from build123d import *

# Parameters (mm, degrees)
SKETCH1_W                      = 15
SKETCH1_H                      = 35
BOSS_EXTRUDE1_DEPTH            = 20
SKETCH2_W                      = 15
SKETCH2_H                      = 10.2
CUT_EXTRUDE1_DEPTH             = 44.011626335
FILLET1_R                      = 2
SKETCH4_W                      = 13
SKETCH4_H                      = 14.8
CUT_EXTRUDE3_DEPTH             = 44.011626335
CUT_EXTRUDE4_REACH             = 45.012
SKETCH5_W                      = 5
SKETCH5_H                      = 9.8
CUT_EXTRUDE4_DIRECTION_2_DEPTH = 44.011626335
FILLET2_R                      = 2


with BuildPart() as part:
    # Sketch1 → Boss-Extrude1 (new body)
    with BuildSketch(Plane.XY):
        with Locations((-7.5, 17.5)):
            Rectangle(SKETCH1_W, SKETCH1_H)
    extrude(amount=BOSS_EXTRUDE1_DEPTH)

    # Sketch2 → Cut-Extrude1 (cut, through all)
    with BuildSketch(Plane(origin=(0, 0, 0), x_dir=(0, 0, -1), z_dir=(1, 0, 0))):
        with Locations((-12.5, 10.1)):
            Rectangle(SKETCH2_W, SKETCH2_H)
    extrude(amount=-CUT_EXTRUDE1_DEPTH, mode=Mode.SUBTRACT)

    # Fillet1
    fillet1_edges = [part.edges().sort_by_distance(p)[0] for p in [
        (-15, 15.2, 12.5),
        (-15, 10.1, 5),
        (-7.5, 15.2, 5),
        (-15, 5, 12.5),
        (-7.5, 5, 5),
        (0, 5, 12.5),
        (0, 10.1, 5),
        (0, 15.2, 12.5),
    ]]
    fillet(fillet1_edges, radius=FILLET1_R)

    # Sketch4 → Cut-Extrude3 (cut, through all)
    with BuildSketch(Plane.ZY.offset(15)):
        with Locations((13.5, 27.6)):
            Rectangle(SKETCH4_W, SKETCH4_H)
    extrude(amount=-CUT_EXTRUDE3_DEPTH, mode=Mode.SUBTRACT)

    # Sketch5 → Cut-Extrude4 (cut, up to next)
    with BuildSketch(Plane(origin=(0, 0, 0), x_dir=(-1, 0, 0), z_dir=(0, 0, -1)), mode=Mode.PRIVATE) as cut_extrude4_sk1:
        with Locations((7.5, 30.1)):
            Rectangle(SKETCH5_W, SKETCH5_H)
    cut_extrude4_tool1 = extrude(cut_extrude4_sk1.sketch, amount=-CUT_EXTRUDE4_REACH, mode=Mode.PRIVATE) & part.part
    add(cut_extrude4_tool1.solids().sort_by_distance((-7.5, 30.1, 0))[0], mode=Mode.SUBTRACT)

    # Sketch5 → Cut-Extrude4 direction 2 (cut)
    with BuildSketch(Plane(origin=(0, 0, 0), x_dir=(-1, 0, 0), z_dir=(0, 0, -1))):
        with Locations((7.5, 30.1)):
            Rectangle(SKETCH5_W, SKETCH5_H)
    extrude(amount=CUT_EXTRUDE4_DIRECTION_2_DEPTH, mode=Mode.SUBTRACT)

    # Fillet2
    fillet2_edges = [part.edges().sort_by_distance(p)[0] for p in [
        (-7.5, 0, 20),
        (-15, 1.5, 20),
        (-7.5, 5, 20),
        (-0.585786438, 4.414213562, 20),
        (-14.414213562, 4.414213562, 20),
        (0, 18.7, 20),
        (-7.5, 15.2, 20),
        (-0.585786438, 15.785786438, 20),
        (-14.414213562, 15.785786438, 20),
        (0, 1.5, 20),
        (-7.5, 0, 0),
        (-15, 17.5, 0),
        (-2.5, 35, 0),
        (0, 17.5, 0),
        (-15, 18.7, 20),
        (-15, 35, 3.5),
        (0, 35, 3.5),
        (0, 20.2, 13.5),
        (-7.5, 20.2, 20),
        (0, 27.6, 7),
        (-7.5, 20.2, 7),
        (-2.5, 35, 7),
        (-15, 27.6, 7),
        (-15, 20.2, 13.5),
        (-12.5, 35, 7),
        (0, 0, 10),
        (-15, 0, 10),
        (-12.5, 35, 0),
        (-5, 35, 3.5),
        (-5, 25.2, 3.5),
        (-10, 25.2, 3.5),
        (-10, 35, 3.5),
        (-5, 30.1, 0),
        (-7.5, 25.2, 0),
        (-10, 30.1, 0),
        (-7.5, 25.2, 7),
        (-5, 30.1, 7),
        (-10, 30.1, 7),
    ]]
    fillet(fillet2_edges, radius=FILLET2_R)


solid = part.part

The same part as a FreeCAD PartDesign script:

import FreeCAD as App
import Part
import Sketcher
from FreeCAD import Vector


def edges_at(feature, points):
    """Names of the edges that pass closest to the given points."""
    edges = feature.Shape.Edges
    near = lambda p: min(range(len(edges)), key=lambda i: edges[i].distToShape(Part.Vertex(*p))[0])
    return sorted({f"Edge{near(p) + 1}" for p in points})

doc = App.newDocument("Part")
params = doc.addObject("Spreadsheet::Sheet", "Params")
for row, (alias, value) in enumerate([
    ("sketch1_width", "15 mm"),
    ("sketch1_height", "35 mm"),
    ("pad1_length", "20 mm"),
    ("sketch2_height", "15 mm"),
    ("sketch2_width", "10.2 mm"),
    ("fillet_radius", "2 mm"),
    ("sketch3_height", "13 mm"),
    ("sketch3_width", "14.8 mm"),
    ("sketch4_width", "5 mm"),
    ("sketch4_height", "9.8 mm"),
    ("sketch5_width", "5 mm"),
    ("sketch5_height", "9.8 mm"),
    ("pocket4_length", "44.011626 mm"),
    ("fillet2_radius", "2 mm"),
], start=1):
    params.set(f"A{row}", alias)
    params.set(f"B{row}", "=" + value)
    params.setAlias(f"B{row}", alias)

body = doc.addObject("PartDesign::Body", "Body")

# Sketch on XY plane
sketch1 = body.newObject("Sketcher::SketchObject", "Sketch")
sketch1.AttachmentSupport = (doc.getObject("XY_Plane"), [""])
sketch1.MapMode = "FlatFace"
sketch1.addGeometry(Part.LineSegment(Vector(-15, 35, 0), Vector(-15, 0, 0)), False)
sketch1.addGeometry(Part.LineSegment(Vector(-15, 0, 0), Vector(0, 0, 0)), False)
sketch1.addGeometry(Part.LineSegment(Vector(0, 0, 0), Vector(0, 35, 0)), False)
sketch1.addGeometry(Part.LineSegment(Vector(0, 35, 0), Vector(-15, 35, 0)), False)
sketch1.addConstraint(Sketcher.Constraint("Coincident", 0, 2, 1, 1))
sketch1.addConstraint(Sketcher.Constraint("Coincident", 1, 2, 2, 1))
sketch1.addConstraint(Sketcher.Constraint("Coincident", 2, 2, 3, 1))
sketch1.addConstraint(Sketcher.Constraint("Coincident", 3, 2, 0, 1))
sketch1.addConstraint(Sketcher.Constraint("Vertical", 0))
sketch1.addConstraint(Sketcher.Constraint("Horizontal", 1))
sketch1.addConstraint(Sketcher.Constraint("Vertical", 2))
sketch1.addConstraint(Sketcher.Constraint("Horizontal", 3))
sketch1.addConstraint(Sketcher.Constraint("Coincident", 1, 2, -1, 1))
sketch1.addConstraint(Sketcher.Constraint("DistanceX", 1, 1, 1, 2, 15.0))
sketch1.addConstraint(Sketcher.Constraint("DistanceY", 0, 2, 0, 1, 35.0))
sketch1.setExpression("Constraints[9]", "Params.sketch1_width")
sketch1.setExpression("Constraints[10]", "Params.sketch1_height")
pad1 = body.newObject("PartDesign::Pad", "Pad")
pad1.Profile = sketch1
pad1.setExpression("Length", "Params.pad1_length")

# Sketch on YZ plane
sketch2 = body.newObject("Sketcher::SketchObject", "Sketch001")
sketch2.AttachmentSupport = (doc.getObject("YZ_Plane"), [""])
sketch2.MapMode = "FlatFace"
sketch2.addGeometry(Part.LineSegment(Vector(15, 20, 0), Vector(5, 20, 0)), False)
sketch2.addGeometry(Part.LineSegment(Vector(5, 20, 0), Vector(5, 5, 0)), False)
sketch2.addGeometry(Part.LineSegment(Vector(5, 5, 0), Vector(15, 5, 0)), False)
sketch2.addGeometry(Part.LineSegment(Vector(15, 5, 0), Vector(15, 20, 0)), False)
sketch2.addConstraint(Sketcher.Constraint("Coincident", 0, 2, 1, 1))
sketch2.addConstraint(Sketcher.Constraint("Coincident", 1, 2, 2, 1))
sketch2.addConstraint(Sketcher.Constraint("Coincident", 2, 2, 3, 1))
sketch2.addConstraint(Sketcher.Constraint("Coincident", 3, 2, 0, 1))
sketch2.addConstraint(Sketcher.Constraint("Horizontal", 0))
sketch2.addConstraint(Sketcher.Constraint("Vertical", 1))
sketch2.addConstraint(Sketcher.Constraint("Horizontal", 2))
sketch2.addConstraint(Sketcher.Constraint("Vertical", 3))
sketch2.addConstraint(Sketcher.Constraint("DistanceY", 1, 2, 1, 1, 15.0))
sketch2.addConstraint(Sketcher.Constraint("DistanceX", 0, 2, 0, 1, 10.2))
sketch2.addConstraint(Sketcher.Constraint("DistanceX", -1, 1, 0, 2, 5.0))
sketch2.addConstraint(Sketcher.Constraint("DistanceY", -1, 1, 0, 2, 20.0))
sketch2.setExpression("Constraints[8]", "Params.sketch2_height")
sketch2.setExpression("Constraints[9]", "Params.sketch2_width")
pocket1 = body.newObject("PartDesign::Pocket", "Pocket")
pocket1.Profile = sketch2
pocket1.Type = "ThroughAll"
doc.recompute()

fillet = body.newObject("PartDesign::Fillet", "Fillet")
fillet.Base = (pocket1, edges_at(pocket1, [
    (-15, 15.2, 12.5),
    (-15, 10.1, 5),
    (-7.5, 15.2, 5),
    (-15, 5, 12.5),
    (-7.5, 5, 5),
    (0, 5, 12.5),
    (0, 10.1, 5),
    (0, 15.2, 12.5),
]))
fillet.setExpression("Radius", "Params.fillet_radius")

# Sketch on YZ plane
sketch3 = body.newObject("Sketcher::SketchObject", "Sketch002")
sketch3.AttachmentSupport = (doc.getObject("YZ_Plane"), [""])
sketch3.MapMode = "FlatFace"
sketch3.AttachmentOffset = App.Placement(Vector(0, 0, -15), App.Rotation())
sketch3.addGeometry(Part.LineSegment(Vector(35, 7, 0), Vector(20, 7, 0)), False)
sketch3.addGeometry(Part.LineSegment(Vector(20, 7, 0), Vector(20, 20, 0)), False)
sketch3.addGeometry(Part.LineSegment(Vector(20, 20, 0), Vector(35, 20, 0)), False)
sketch3.addGeometry(Part.LineSegment(Vector(35, 20, 0), Vector(35, 7, 0)), False)
sketch3.addConstraint(Sketcher.Constraint("Coincident", 0, 2, 1, 1))
sketch3.addConstraint(Sketcher.Constraint("Coincident", 1, 2, 2, 1))
sketch3.addConstraint(Sketcher.Constraint("Coincident", 2, 2, 3, 1))
sketch3.addConstraint(Sketcher.Constraint("Coincident", 3, 2, 0, 1))
sketch3.addConstraint(Sketcher.Constraint("Horizontal", 0))
sketch3.addConstraint(Sketcher.Constraint("Vertical", 1))
sketch3.addConstraint(Sketcher.Constraint("Horizontal", 2))
sketch3.addConstraint(Sketcher.Constraint("Vertical", 3))
sketch3.addConstraint(Sketcher.Constraint("DistanceY", 1, 1, 1, 2, 13.0))
sketch3.addConstraint(Sketcher.Constraint("DistanceX", 0, 2, 0, 1, 14.8))
sketch3.addConstraint(Sketcher.Constraint("DistanceY", -1, 1, 0, 2, 7.0))
sketch3.addConstraint(Sketcher.Constraint("DistanceX", -1, 1, 2, 2, 35.0))
sketch3.setExpression("Constraints[8]", "Params.sketch3_height")
sketch3.setExpression("Constraints[9]", "Params.sketch3_width")
pocket2 = body.newObject("PartDesign::Pocket", "Pocket001")
pocket2.Profile = sketch3
pocket2.Type = "ThroughAll"
pocket2.Reversed = True

# Sketch on XY plane
sketch4 = body.newObject("Sketcher::SketchObject", "Sketch003")
sketch4.AttachmentSupport = (doc.getObject("XY_Plane"), [""])
sketch4.MapMode = "FlatFace"
sketch4.addGeometry(Part.LineSegment(Vector(-5, 35, 0), Vector(-5, 25, 0)), False)
sketch4.addGeometry(Part.LineSegment(Vector(-5, 25, 0), Vector(-10, 25, 0)), False)
sketch4.addGeometry(Part.LineSegment(Vector(-10, 25, 0), Vector(-10, 35, 0)), False)
sketch4.addGeometry(Part.LineSegment(Vector(-10, 35, 0), Vector(-5, 35, 0)), False)
sketch4.addConstraint(Sketcher.Constraint("Coincident", 0, 2, 1, 1))
sketch4.addConstraint(Sketcher.Constraint("Coincident", 1, 2, 2, 1))
sketch4.addConstraint(Sketcher.Constraint("Coincident", 2, 2, 3, 1))
sketch4.addConstraint(Sketcher.Constraint("Coincident", 3, 2, 0, 1))
sketch4.addConstraint(Sketcher.Constraint("Vertical", 0))
sketch4.addConstraint(Sketcher.Constraint("Horizontal", 1))
sketch4.addConstraint(Sketcher.Constraint("Vertical", 2))
sketch4.addConstraint(Sketcher.Constraint("Horizontal", 3))
sketch4.addConstraint(Sketcher.Constraint("DistanceX", 1, 2, 1, 1, 5.0))
sketch4.addConstraint(Sketcher.Constraint("DistanceY", 0, 2, 0, 1, 9.8))
sketch4.addConstraint(Sketcher.Constraint("DistanceX", 0, 2, -1, 1, 5.0))
sketch4.addConstraint(Sketcher.Constraint("DistanceY", -1, 1, 2, 2, 35.0))
sketch4.setExpression("Constraints[8]", "Params.sketch4_width")
sketch4.setExpression("Constraints[9]", "Params.sketch4_height")
pocket3 = body.newObject("PartDesign::Pocket", "Pocket002")
pocket3.Profile = sketch4
pocket3.Type = "UpToFirst"
pocket3.Reversed = True

# Sketch on XY plane
sketch5 = body.newObject("Sketcher::SketchObject", "Sketch004")
sketch5.AttachmentSupport = (doc.getObject("XY_Plane"), [""])
sketch5.MapMode = "FlatFace"
sketch5.addGeometry(Part.LineSegment(Vector(-5, 35, 0), Vector(-5, 25, 0)), False)
sketch5.addGeometry(Part.LineSegment(Vector(-5, 25, 0), Vector(-10, 25, 0)), False)
sketch5.addGeometry(Part.LineSegment(Vector(-10, 25, 0), Vector(-10, 35, 0)), False)
sketch5.addGeometry(Part.LineSegment(Vector(-10, 35, 0), Vector(-5, 35, 0)), False)
sketch5.addConstraint(Sketcher.Constraint("Coincident", 0, 2, 1, 1))
sketch5.addConstraint(Sketcher.Constraint("Coincident", 1, 2, 2, 1))
sketch5.addConstraint(Sketcher.Constraint("Coincident", 2, 2, 3, 1))
sketch5.addConstraint(Sketcher.Constraint("Coincident", 3, 2, 0, 1))
sketch5.addConstraint(Sketcher.Constraint("Vertical", 0))
sketch5.addConstraint(Sketcher.Constraint("Horizontal", 1))
sketch5.addConstraint(Sketcher.Constraint("Vertical", 2))
sketch5.addConstraint(Sketcher.Constraint("Horizontal", 3))
sketch5.addConstraint(Sketcher.Constraint("DistanceX", 1, 2, 1, 1, 5.0))
sketch5.addConstraint(Sketcher.Constraint("DistanceY", 0, 2, 0, 1, 9.8))
sketch5.addConstraint(Sketcher.Constraint("DistanceX", 0, 2, -1, 1, 5.0))
sketch5.addConstraint(Sketcher.Constraint("DistanceY", -1, 1, 2, 2, 35.0))
sketch5.setExpression("Constraints[8]", "Params.sketch5_width")
sketch5.setExpression("Constraints[9]", "Params.sketch5_height")
pocket4 = body.newObject("PartDesign::Pocket", "Pocket003")
pocket4.Profile = sketch5
pocket4.setExpression("Length", "Params.pocket4_length")
doc.recompute()

fillet2 = body.newObject("PartDesign::Fillet", "Fillet001")
fillet2.Base = (pocket4, edges_at(pocket4, [
    (-7.5, 0, 20),
    (-15, 1.5, 20),
    (-7.5, 5, 20),
    (-0.586, 4.414, 20),
    (-14.414, 4.414, 20),
    (0, 18.7, 20),
    (-7.5, 15.2, 20),
    (-0.586, 15.786, 20),
    (-14.414, 15.786, 20),
    (0, 1.5, 20),
    (-7.5, 0, 0),
    (-15, 17.5, 0),
    (-2.5, 35, 0),
    (0, 17.5, 0),
    (-15, 18.7, 20),
    (-15, 35, 3.5),
    (0, 35, 3.5),
    (0, 20.2, 13.5),
    (-7.5, 20.2, 20),
    (0, 27.6, 7),
    (-7.5, 20.2, 7),
    (-2.5, 35, 7),
    (-15, 27.6, 7),
    (-15, 20.2, 13.5),
    (-12.5, 35, 7),
    (0, 0, 10),
    (-15, 0, 10),
    (-12.5, 35, 0),
    (-5, 35, 3.5),
    (-5, 25.2, 3.5),
    (-10, 25.2, 3.5),
    (-10, 35, 3.5),
    (-5, 30.1, 0),
    (-7.5, 25.2, 0),
    (-10, 30.1, 0),
    (-7.5, 25.2, 7),
    (-5, 30.1, 7),
    (-10, 30.1, 7),
]))
fillet2.setExpression("Radius", "Params.fillet2_radius")

doc.recompute()
